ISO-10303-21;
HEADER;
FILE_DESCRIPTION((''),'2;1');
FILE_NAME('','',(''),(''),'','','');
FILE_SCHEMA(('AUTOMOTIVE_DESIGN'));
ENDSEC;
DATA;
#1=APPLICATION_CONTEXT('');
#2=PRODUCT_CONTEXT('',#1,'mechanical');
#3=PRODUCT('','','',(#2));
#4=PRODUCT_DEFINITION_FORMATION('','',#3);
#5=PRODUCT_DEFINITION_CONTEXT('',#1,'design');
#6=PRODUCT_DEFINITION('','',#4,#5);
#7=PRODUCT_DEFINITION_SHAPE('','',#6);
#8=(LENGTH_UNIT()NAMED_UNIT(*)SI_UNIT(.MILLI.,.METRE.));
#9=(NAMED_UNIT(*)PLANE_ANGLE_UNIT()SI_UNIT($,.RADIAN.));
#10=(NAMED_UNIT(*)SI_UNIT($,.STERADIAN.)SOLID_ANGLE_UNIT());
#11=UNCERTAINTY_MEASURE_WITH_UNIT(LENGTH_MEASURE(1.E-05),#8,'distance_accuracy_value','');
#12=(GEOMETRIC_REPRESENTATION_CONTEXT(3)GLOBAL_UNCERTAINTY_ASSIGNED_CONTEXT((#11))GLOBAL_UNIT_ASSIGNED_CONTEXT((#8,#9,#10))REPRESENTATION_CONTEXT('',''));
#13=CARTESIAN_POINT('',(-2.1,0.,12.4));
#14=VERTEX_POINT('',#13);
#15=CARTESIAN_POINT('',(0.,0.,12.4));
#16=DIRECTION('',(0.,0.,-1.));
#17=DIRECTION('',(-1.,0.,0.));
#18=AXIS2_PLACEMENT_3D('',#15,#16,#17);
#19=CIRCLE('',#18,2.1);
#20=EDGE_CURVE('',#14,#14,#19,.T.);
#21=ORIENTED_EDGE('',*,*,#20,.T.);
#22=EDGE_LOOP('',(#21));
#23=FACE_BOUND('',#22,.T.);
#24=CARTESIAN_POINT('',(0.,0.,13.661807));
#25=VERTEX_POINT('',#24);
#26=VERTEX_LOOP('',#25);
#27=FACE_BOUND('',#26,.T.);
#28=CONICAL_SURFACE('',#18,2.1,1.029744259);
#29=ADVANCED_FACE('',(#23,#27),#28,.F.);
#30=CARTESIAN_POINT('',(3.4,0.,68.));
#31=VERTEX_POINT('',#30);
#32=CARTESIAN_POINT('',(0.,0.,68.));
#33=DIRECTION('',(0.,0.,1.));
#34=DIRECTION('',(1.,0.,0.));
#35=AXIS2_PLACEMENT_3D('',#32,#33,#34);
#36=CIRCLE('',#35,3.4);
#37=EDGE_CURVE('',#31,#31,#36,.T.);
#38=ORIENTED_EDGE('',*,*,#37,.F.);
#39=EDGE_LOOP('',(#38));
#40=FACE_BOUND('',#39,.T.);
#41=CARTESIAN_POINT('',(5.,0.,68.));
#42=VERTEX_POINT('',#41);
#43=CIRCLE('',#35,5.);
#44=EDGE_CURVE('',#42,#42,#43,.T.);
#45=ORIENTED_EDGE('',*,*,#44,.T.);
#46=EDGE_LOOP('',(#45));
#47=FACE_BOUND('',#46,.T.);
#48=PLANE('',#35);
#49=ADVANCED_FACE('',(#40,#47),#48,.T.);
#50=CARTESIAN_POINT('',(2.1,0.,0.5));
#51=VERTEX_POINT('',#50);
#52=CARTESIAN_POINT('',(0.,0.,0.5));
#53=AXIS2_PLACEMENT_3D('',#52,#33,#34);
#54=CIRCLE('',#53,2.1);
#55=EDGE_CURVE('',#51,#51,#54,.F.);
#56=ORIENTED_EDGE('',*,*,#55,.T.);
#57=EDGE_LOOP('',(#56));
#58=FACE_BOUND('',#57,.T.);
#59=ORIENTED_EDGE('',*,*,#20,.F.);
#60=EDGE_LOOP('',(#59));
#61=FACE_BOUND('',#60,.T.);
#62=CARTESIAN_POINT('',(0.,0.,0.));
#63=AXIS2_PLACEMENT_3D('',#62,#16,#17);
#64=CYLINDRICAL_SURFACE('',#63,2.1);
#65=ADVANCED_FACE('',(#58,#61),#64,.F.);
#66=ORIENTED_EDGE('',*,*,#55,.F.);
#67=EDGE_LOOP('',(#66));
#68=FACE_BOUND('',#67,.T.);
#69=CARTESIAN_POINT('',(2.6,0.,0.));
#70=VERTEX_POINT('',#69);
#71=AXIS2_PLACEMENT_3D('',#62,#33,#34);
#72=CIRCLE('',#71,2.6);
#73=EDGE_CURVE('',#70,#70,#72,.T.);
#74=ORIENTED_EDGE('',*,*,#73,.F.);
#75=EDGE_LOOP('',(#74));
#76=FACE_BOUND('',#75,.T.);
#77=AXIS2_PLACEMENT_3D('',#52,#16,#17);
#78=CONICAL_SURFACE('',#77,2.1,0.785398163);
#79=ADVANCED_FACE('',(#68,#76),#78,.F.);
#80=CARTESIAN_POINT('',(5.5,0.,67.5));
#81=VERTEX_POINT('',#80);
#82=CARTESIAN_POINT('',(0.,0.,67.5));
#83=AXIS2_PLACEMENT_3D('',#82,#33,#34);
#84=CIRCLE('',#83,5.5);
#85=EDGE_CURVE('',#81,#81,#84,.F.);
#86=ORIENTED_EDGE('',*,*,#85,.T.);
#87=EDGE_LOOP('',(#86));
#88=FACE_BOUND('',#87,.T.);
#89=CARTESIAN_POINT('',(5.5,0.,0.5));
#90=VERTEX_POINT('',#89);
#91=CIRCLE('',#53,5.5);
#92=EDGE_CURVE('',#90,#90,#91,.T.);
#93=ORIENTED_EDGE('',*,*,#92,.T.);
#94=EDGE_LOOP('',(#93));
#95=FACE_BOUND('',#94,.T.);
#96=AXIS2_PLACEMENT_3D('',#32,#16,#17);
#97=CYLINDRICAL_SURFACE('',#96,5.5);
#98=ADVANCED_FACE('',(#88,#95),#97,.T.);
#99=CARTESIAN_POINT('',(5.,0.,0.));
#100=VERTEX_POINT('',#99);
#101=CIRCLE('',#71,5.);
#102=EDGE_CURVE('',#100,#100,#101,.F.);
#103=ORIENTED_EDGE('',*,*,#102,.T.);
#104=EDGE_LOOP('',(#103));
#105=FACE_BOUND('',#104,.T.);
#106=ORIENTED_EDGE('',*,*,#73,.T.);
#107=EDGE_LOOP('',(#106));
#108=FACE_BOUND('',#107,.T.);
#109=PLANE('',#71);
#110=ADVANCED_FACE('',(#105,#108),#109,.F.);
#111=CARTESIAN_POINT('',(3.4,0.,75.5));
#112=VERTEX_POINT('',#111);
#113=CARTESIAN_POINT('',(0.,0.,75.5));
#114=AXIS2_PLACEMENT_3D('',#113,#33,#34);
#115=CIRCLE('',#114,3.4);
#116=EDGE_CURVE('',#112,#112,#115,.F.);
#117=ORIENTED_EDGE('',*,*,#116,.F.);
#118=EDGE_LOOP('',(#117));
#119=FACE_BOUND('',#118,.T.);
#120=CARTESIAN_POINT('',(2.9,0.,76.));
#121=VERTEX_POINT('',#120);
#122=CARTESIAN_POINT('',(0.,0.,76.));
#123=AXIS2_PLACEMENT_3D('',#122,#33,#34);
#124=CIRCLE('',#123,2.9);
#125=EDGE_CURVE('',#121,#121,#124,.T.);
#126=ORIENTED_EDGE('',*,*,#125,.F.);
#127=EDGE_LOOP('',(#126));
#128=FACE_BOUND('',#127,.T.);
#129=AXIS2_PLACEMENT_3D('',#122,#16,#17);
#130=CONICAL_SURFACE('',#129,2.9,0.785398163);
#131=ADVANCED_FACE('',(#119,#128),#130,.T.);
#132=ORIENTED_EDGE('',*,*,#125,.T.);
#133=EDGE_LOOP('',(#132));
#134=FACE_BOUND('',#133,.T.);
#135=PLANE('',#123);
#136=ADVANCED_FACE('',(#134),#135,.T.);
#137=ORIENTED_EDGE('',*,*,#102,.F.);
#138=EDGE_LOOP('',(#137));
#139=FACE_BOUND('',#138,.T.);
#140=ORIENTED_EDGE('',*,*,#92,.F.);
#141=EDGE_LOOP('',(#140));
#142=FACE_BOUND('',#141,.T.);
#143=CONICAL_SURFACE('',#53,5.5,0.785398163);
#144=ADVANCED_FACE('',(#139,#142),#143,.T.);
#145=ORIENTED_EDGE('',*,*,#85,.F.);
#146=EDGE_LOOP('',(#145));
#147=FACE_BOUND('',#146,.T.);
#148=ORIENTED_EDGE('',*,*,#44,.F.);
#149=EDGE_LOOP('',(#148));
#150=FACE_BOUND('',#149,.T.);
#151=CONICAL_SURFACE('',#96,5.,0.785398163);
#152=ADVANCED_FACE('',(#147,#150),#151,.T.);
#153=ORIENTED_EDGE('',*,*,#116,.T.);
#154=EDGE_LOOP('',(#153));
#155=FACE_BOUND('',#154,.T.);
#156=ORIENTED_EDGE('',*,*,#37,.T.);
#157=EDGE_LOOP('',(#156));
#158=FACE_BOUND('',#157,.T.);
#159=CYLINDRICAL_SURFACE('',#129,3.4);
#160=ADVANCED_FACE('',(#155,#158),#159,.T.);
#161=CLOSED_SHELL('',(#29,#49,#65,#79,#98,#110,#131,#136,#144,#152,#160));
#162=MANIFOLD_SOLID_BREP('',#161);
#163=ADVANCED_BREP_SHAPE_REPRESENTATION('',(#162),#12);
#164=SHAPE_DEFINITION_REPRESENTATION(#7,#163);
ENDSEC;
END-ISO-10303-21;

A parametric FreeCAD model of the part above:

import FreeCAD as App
import Part
import Sketcher

V = App.Vector
Q = App.Units.Quantity


def edges_at(feature, points):
    """Names of the edges that pass closest to the given points."""
    edges = feature.Shape.Edges
    near = lambda p: min(range(len(edges)), key=lambda i: edges[i].distToShape(Part.Vertex(*p))[0])
    return sorted({f"Edge{near(p) + 1}" for p in points})

doc = App.newDocument("Part")
params = doc.addObject("Spreadsheet::Sheet", "Params")
for row, (alias, value) in enumerate([
    ("sketch1_diameter", "11 mm"),
    ("pad1_length", "68 mm"),
    ("chamfer_size", "0.5 mm"),
    ("sketch2_diameter", "6.8 mm"),
    ("pad2_length", "8 mm"),
    ("chamfer2_size", "0.5 mm"),
    ("sketch3_diameter", "4.2 mm"),
    ("hole_diameter", "4.2 mm"),
    ("hole_depth", "12.4 mm"),
    ("chamfer3_size", "0.5 mm"),
], start=1):
    params.set(f"A{row}", alias)
    params.set(f"B{row}", "=" + value)
    params.setAlias(f"B{row}", alias)

body = doc.addObject("PartDesign::Body", "Body")

# Sketch on XY plane
sketch1 = body.newObject("Sketcher::SketchObject", "Sketch")
sketch1.AttachmentSupport = (doc.getObject("XY_Plane"), [""])
sketch1.MapMode = "FlatFace"
sketch1.addGeometry(Part.Circle(V(0, 0, 0), V(0, 0, 1), 6), False)
sketch1.addConstraint([
    Sketcher.Constraint("Coincident", 0, 3, -1, 1),
    Sketcher.Constraint("Diameter", 0, Q("11 mm")),
])
sketch1.setExpression("Constraints[1]", "Params.sketch1_diameter")
pad1 = body.newObject("PartDesign::Pad", "Pad")
pad1.Profile = sketch1
pad1.setExpression("Length", "Params.pad1_length")
doc.recompute()

chamfer = body.newObject("PartDesign::Chamfer", "Chamfer")
chamfer.Base = (pad1, edges_at(pad1, [(-5.5, 0, 0), (-5.5, 0, 68)]))
chamfer.setExpression("Size", "Params.chamfer_size")

# Sketch on XY plane
sketch2 = body.newObject("Sketcher::SketchObject", "Sketch001")
sketch2.AttachmentSupport = (doc.getObject("XY_Plane"), [""])
sketch2.MapMode = "FlatFace"
sketch2.AttachmentOffset = App.Placement(V(0, 0, 68), App.Rotation())
sketch2.addGeometry(Part.Circle(V(0, 0, 0), V(0, 0, 1), 3.4), False)
sketch2.addConstraint([
    Sketcher.Constraint("Coincident", 0, 3, -1, 1),
    Sketcher.Constraint("Diameter", 0, Q("6.8 mm")),
])
sketch2.setExpression("Constraints[1]", "Params.sketch2_diameter")
pad2 = body.newObject("PartDesign::Pad", "Pad001")
pad2.Profile = sketch2
pad2.setExpression("Length", "Params.pad2_length")
doc.recompute()

chamfer2 = body.newObject("PartDesign::Chamfer", "Chamfer001")
chamfer2.Base = (pad2, edges_at(pad2, [(-3.4, 0, 76)]))
chamfer2.setExpression("Size", "Params.chamfer2_size")

# Sketch on XY plane
sketch3 = body.newObject("Sketcher::SketchObject", "Sketch002")
sketch3.AttachmentSupport = (doc.getObject("XY_Plane"), [""])
sketch3.MapMode = "FlatFace"
sketch3.addGeometry(Part.Circle(V(0, 0, 0), V(0, 0, 1), 2.1), False)
sketch3.addConstraint([
    Sketcher.Constraint("Coincident", 0, 3, -1, 1),
    Sketcher.Constraint("Diameter", 0, Q("4.2 mm")),
])
sketch3.setExpression("Constraints[1]", "Params.sketch3_diameter")
doc.recompute()
hole = body.newObject("PartDesign::Hole", "Hole")
hole.Profile = sketch3
hole.ThreadType = "None"
hole.setExpression("Diameter", "Params.hole_diameter")
hole.DepthType = "Dimension"
hole.setExpression("Depth", "Params.hole_depth")
hole.DrillPoint = "Angled"
hole.DrillPointAngle = 118
hole.Reversed = True
doc.recompute()

chamfer3 = body.newObject("PartDesign::Chamfer", "Chamfer002")
chamfer3.Base = (hole, edges_at(hole, [(-2.1, 0, 0)]))
chamfer3.setExpression("Size", "Params.chamfer3_size")

doc.recompute()
